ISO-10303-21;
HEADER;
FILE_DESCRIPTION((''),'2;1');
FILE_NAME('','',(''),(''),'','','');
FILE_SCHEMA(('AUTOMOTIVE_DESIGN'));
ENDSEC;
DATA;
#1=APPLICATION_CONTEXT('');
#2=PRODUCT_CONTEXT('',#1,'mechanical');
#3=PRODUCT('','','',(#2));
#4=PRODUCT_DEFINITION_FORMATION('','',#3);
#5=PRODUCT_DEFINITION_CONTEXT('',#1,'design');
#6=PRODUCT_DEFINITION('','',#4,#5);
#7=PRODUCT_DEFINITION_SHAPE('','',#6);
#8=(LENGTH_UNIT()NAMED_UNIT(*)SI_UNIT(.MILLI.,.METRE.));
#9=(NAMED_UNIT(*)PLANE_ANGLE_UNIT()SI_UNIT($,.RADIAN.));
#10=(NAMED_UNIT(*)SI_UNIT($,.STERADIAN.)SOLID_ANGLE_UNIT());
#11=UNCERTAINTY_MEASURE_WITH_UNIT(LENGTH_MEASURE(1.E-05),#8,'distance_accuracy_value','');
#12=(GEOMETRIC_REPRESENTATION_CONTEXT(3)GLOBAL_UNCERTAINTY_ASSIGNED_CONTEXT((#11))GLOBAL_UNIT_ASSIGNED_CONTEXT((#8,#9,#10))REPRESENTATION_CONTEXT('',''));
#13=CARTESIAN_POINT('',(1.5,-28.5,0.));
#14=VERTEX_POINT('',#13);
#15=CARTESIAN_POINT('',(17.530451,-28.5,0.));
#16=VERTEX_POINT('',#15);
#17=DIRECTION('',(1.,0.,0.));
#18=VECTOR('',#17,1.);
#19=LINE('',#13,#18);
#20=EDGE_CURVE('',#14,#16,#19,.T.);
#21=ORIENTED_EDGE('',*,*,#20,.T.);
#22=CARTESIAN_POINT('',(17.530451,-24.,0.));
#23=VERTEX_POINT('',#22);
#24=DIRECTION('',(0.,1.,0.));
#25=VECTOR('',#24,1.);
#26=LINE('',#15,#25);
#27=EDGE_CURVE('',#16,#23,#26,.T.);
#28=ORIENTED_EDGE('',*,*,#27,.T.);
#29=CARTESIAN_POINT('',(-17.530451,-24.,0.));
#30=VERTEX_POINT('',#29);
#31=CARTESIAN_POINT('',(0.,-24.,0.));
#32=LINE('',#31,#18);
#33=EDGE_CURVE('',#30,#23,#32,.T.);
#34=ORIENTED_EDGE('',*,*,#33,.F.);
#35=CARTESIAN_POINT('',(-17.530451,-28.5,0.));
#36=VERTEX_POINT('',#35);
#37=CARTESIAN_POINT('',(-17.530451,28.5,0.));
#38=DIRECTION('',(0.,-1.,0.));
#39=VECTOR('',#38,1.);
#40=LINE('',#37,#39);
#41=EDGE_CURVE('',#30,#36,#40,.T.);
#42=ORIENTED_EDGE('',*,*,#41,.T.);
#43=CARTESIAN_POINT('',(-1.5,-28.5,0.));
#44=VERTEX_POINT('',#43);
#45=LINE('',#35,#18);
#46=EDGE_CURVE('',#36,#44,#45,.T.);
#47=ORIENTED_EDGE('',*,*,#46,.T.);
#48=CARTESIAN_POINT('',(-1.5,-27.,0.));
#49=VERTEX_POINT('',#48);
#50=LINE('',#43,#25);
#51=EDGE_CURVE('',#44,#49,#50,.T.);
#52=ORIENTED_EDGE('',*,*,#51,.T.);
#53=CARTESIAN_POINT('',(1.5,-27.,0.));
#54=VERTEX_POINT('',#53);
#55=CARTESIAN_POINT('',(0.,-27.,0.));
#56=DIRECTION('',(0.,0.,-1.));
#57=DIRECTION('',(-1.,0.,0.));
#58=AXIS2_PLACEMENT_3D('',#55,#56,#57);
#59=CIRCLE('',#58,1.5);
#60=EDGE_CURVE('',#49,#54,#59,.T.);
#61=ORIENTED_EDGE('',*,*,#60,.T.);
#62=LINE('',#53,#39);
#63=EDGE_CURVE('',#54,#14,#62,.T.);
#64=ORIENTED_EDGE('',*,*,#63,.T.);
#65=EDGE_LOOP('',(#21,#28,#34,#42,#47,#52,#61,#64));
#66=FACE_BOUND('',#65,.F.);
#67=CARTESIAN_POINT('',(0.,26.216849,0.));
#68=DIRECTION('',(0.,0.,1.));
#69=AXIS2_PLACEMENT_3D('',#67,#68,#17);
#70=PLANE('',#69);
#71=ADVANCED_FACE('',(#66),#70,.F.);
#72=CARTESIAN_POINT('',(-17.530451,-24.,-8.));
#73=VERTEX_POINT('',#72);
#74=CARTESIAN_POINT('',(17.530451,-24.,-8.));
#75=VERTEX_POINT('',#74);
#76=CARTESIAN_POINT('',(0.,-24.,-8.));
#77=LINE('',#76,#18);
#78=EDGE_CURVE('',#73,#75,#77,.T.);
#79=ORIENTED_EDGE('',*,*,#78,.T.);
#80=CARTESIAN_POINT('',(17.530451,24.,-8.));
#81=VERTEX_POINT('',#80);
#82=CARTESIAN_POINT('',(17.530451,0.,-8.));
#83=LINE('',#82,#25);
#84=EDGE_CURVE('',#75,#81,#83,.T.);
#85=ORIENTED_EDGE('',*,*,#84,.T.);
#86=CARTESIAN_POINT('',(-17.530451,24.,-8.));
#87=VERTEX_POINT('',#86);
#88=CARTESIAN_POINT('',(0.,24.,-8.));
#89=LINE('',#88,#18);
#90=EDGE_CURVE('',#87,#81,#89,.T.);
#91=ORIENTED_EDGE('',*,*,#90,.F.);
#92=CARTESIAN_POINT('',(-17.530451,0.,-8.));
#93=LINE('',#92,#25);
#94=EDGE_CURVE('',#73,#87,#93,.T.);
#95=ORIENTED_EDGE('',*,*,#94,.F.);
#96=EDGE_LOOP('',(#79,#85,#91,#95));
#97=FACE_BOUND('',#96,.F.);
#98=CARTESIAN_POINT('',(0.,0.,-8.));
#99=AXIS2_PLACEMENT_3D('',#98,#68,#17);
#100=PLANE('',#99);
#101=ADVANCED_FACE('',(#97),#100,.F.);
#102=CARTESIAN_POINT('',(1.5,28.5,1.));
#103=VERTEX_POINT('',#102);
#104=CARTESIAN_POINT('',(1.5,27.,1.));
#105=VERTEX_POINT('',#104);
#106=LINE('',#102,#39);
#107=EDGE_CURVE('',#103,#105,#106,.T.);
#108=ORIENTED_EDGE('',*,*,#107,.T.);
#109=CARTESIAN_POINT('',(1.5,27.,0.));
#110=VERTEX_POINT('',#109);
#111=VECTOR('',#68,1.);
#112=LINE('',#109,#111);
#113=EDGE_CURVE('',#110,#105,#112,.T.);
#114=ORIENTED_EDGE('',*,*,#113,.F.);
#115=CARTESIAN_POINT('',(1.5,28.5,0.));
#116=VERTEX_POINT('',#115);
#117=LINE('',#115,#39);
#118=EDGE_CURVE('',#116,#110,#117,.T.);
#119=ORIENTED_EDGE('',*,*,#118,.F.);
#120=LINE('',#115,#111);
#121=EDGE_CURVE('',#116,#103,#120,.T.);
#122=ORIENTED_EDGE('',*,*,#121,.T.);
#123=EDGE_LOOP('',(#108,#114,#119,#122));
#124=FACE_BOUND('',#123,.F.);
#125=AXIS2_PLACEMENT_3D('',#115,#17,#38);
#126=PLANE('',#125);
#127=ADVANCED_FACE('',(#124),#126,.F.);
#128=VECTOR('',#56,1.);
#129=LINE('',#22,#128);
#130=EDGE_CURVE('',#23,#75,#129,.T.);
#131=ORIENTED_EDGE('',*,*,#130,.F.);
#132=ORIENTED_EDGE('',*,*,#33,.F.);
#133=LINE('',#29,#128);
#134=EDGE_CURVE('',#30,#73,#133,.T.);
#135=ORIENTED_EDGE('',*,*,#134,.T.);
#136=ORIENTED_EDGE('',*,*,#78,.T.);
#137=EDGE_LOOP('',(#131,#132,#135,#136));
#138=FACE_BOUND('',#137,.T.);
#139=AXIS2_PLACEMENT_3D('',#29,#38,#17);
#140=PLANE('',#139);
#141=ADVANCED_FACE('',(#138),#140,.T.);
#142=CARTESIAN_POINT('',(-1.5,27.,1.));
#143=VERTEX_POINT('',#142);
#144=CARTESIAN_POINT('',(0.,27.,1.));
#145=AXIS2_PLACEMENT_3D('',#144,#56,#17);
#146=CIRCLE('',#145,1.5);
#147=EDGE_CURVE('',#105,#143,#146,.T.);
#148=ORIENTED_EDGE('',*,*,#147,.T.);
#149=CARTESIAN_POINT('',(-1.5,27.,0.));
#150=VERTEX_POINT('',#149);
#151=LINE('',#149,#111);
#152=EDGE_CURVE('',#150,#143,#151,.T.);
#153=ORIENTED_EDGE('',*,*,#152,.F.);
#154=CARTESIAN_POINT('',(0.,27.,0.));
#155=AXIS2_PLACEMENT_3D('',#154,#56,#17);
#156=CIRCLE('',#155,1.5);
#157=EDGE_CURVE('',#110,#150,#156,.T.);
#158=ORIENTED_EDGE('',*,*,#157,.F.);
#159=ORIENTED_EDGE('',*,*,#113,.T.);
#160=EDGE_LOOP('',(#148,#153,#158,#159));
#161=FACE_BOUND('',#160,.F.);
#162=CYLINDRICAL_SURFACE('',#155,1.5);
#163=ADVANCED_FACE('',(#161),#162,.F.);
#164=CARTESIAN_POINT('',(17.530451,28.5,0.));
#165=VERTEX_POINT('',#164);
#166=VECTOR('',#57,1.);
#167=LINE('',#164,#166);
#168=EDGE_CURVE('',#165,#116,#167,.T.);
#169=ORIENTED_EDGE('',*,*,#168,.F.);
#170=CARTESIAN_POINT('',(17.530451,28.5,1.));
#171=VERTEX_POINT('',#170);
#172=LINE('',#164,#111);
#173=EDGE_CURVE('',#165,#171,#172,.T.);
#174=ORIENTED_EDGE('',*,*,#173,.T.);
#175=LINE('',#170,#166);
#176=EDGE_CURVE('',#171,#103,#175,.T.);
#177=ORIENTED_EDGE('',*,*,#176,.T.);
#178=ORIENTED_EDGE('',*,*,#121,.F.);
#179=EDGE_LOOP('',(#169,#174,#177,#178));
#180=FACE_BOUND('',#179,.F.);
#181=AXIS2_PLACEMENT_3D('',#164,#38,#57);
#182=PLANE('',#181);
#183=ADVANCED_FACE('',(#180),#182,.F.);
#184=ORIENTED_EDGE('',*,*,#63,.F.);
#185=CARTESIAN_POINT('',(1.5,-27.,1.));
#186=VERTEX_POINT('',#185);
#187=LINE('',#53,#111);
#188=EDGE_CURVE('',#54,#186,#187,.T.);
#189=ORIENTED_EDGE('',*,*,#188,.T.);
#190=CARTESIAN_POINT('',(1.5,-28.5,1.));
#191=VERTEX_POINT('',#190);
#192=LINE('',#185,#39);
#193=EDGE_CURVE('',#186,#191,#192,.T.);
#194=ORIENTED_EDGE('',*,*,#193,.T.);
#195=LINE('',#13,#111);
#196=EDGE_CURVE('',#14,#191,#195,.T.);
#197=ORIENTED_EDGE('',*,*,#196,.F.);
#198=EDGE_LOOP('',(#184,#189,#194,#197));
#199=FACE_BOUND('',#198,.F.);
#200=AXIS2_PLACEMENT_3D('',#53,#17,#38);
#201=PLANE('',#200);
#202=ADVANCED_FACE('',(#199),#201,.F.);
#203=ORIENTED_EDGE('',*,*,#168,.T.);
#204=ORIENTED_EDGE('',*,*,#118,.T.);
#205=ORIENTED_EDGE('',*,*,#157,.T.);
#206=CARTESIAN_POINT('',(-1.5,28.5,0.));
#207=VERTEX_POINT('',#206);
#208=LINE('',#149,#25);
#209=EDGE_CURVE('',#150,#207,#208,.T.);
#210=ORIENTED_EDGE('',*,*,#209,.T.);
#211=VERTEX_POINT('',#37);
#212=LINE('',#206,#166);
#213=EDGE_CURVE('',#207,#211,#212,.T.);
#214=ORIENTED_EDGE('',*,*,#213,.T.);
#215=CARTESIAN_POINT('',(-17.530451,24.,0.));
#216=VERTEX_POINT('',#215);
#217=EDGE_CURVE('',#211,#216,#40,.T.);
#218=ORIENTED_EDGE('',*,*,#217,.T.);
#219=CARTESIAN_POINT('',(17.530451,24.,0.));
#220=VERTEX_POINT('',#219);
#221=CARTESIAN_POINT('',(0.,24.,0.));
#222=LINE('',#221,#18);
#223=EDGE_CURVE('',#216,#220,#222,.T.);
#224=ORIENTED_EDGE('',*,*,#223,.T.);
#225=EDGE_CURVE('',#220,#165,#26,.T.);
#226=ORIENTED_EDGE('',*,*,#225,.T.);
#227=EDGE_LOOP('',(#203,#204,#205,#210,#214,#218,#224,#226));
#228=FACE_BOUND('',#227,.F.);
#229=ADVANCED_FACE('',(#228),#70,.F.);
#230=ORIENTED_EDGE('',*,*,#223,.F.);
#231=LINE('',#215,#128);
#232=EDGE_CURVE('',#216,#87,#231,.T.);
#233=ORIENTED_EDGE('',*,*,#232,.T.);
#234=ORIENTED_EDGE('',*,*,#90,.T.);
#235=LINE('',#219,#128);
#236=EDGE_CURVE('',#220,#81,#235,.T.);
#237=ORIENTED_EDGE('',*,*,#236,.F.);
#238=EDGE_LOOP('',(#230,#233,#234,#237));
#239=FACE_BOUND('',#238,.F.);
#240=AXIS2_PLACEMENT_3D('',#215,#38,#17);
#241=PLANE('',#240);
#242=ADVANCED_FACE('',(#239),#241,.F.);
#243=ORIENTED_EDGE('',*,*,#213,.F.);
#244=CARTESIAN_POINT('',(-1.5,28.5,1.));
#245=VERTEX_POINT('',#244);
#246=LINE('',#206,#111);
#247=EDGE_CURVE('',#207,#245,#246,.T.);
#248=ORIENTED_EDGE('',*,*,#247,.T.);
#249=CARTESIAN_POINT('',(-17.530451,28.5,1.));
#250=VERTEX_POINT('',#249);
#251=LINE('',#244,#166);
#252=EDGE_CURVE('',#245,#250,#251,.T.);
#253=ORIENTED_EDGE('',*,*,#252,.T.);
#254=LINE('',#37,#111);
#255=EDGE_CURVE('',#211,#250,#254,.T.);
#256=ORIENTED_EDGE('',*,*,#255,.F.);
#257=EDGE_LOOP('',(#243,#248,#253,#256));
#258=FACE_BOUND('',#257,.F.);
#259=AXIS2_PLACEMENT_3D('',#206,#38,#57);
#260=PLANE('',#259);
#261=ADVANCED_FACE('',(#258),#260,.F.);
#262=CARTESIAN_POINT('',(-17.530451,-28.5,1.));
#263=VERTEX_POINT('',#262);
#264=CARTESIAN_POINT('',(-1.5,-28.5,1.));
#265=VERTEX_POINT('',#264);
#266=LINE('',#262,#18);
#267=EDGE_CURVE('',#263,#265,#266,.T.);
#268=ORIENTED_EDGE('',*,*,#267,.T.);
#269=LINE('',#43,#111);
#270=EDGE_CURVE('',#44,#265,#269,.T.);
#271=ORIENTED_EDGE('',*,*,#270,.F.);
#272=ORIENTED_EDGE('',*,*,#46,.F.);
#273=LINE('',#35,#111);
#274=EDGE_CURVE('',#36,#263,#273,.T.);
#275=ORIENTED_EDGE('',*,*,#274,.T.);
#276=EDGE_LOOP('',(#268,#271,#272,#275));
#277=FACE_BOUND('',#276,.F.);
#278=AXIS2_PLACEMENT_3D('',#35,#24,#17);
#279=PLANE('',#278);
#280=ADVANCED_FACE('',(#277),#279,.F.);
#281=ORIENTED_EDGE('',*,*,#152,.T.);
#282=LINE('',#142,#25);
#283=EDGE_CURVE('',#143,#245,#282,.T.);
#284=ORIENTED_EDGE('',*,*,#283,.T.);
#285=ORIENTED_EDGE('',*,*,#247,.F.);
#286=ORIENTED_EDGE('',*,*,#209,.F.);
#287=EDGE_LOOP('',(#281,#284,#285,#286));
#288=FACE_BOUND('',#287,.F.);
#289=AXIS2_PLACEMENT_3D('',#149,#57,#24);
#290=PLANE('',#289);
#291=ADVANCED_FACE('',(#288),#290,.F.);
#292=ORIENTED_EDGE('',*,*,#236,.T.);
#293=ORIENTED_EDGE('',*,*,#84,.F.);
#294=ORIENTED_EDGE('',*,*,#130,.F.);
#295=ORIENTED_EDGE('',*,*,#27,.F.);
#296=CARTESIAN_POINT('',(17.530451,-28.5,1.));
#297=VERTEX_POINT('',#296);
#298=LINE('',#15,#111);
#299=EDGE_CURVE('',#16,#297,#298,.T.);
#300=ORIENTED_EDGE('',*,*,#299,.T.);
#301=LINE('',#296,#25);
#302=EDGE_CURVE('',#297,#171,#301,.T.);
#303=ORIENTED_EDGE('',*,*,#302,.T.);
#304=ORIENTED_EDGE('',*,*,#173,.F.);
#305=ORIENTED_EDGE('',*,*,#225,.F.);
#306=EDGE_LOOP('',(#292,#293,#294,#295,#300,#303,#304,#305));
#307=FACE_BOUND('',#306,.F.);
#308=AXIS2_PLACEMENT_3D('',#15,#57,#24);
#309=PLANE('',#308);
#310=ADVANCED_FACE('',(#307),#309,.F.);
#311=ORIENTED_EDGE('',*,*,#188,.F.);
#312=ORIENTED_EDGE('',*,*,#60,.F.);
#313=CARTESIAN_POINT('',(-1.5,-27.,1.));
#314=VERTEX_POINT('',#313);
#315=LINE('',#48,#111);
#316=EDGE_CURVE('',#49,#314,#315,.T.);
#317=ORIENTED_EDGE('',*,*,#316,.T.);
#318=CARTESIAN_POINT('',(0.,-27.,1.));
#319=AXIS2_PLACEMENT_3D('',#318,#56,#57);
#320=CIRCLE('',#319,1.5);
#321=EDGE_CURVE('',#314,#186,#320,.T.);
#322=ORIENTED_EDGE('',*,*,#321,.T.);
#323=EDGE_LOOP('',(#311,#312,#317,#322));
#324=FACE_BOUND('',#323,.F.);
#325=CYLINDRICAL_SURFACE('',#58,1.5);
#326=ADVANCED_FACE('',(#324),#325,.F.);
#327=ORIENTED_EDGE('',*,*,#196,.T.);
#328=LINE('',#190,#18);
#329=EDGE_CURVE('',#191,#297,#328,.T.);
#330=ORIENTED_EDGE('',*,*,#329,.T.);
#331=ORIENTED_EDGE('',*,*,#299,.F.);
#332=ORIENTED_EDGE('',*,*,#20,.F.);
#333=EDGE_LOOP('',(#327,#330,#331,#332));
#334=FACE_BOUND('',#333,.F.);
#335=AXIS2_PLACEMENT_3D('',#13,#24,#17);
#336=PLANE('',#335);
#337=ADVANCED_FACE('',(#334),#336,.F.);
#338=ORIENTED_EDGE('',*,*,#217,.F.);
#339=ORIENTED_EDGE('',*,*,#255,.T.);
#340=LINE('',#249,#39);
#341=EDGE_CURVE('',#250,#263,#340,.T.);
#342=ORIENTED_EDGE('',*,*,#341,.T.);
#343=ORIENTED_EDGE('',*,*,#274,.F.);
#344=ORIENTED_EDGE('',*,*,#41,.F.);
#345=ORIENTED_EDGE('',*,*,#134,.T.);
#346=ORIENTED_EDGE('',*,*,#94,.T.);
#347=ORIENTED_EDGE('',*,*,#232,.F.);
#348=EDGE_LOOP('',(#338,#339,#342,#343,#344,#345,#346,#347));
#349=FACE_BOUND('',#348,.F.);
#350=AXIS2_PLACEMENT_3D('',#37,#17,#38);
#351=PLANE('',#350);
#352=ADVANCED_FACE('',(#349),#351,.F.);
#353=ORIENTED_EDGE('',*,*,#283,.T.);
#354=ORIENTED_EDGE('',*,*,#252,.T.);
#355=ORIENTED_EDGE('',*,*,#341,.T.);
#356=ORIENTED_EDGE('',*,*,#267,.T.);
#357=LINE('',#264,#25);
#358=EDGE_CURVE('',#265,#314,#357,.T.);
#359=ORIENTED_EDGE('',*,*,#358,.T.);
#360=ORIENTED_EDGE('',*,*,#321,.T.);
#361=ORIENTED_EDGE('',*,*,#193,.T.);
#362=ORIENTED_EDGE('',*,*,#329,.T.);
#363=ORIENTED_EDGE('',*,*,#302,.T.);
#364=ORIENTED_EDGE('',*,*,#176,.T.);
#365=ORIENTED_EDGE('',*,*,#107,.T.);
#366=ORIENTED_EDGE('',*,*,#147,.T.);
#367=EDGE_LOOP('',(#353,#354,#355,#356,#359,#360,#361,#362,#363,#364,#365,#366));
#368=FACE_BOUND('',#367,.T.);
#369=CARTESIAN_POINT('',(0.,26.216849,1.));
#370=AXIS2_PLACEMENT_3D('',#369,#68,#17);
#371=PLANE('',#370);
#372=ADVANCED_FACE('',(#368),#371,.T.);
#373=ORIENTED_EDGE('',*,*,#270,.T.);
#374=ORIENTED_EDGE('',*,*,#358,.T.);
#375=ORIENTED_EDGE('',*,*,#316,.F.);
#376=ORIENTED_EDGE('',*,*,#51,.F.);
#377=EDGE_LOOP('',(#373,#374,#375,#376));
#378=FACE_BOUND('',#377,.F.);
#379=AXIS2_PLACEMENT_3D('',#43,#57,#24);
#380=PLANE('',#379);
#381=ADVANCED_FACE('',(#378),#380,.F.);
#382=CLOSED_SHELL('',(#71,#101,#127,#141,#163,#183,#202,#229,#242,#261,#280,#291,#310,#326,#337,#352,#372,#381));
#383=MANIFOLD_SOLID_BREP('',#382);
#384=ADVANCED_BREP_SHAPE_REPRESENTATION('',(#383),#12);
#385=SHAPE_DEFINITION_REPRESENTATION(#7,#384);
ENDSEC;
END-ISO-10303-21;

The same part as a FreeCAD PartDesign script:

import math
import FreeCAD as App
import Part
import Sketcher

V = App.Vector


def add_polygon(sketch, points):
    """Adds a closed chain of lines whose ends are joined by coincident constraints."""
    first, n = sketch.GeometryCount, len(points)
    for a, b in zip(points, points[1:] + points[:1]):
        sketch.addGeometry(Part.LineSegment(App.Vector(*a, 0), App.Vector(*b, 0)), False)
    for i in range(n):
        sketch.addConstraint(Sketcher.Constraint("Coincident", first + i, 2, first + (i + 1) % n, 1))

doc = App.newDocument("Part")
params = doc.addObject("Spreadsheet::Sheet", "Params")
for row, (alias, value) in enumerate([
    ("sketch1_radius", "1.5 mm"),
    ("sketch1_height", "57 mm"),
    ("sketch1_height2", "1.5 mm"),
    ("pad1_length", "1 mm"),
    ("sketch2_height", "48 mm"),
    ("pad2_length", "8 mm"),
], start=1):
    params.set(f"A{row}", alias)
    params.set(f"B{row}", "=" + value)
    params.setAlias(f"B{row}", alias)

body = doc.addObject("PartDesign::Body", "Body")

# Sketch on XY plane
sketch1 = body.newObject("Sketcher::SketchObject", "Sketch")
sketch1.AttachmentSupport = (doc.getObject("XY_Plane"), [""])
sketch1.MapMode = "FlatFace"
sketch1.addGeometry([
    Part.LineSegment(V(-17.530451, 28.5, 0), V(-17.530451, -28.5, 0)),  # 0
    Part.LineSegment(V(-17.530451, -28.5, 0), V(-1.5, -28.5, 0)),  # 1
    Part.LineSegment(V(-1.5, -28.5, 0), V(-1.5, -27, 0)),  # 2
    Part.ArcOfCircle(Part.Circle(V(0, -27, 0), V(0, 0, 1), 1.5), math.radians(0), math.radians(180)),  # 3
    Part.LineSegment(V(1.5, -27, 0), V(1.5, -28.5, 0)),  # 4
    Part.LineSegment(V(1.5, -28.5, 0), V(17.530451, -28.5, 0)),  # 5
    Part.LineSegment(V(17.530451, -28.5, 0), V(17.530451, 28.5, 0)),  # 6
    Part.LineSegment(V(17.530451, 28.5, 0), V(1.5, 28.5, 0)),  # 7
    Part.LineSegment(V(1.5, 28.5, 0), V(1.5, 27, 0)),  # 8
    Part.ArcOfCircle(Part.Circle(V(0, 27, 0), V(0, 0, 1), 1.5), math.radians(180), math.radians(360)),  # 9
    Part.LineSegment(V(-1.5, 27, 0), V(-1.5, 28.5, 0)),  # 10
    Part.LineSegment(V(-1.5, 28.5, 0), V(-17.530451, 28.5, 0)),  # 11
], False)
sketch1.addConstraint([
    Sketcher.Constraint("Coincident", 0, 2, 1, 1),
    Sketcher.Constraint("Coincident", 1, 2, 2, 1),
    Sketcher.Constraint("Tangent", 2, 2, 3, 2),
    Sketcher.Constraint("Tangent", 3, 1, 4, 1),
    Sketcher.Constraint("Coincident", 4, 2, 5, 1),
    Sketcher.Constraint("Coincident", 5, 2, 6, 1),
    Sketcher.Constraint("Coincident", 6, 2, 7, 1),
    Sketcher.Constraint("Coincident", 7, 2, 8, 1),
    Sketcher.Constraint("Tangent", 8, 2, 9, 2),
    Sketcher.Constraint("Tangent", 9, 1, 10, 1),
    Sketcher.Constraint("Coincident", 10, 2, 11, 1),
    Sketcher.Constraint("Coincident", 11, 2, 0, 1),
    Sketcher.Constraint("Vertical", 0),
    Sketcher.Constraint("Horizontal", 1),
    Sketcher.Constraint("Vertical", 2),
    Sketcher.Constraint("Vertical", 4),
    Sketcher.Constraint("Horizontal", 5),
    Sketcher.Constraint("Vertical", 6),
    Sketcher.Constraint("Horizontal", 7),
    Sketcher.Constraint("Vertical", 8),
    Sketcher.Constraint("Vertical", 10),
    Sketcher.Constraint("Horizontal", 11),
    Sketcher.Constraint("Equal", 3, 9),
    Sketcher.Constraint("Symmetric", 3, 3, 9, 3, -1, 1),
    Sketcher.Constraint("Symmetric", 0, 2, 6, 2, -1, 1),
    Sketcher.Constraint("Symmetric", 1, 2, 4, 2, -2),
    Sketcher.Constraint("Horizontal", 7, 2, 10, 2),
    Sketcher.Constraint("Radius", 3, 1.5),
    Sketcher.Constraint("DistanceY", 0, 2, 0, 1, 57.0),
    Sketcher.Constraint("DistanceY", 2, 1, 2, 2, 1.5),
    Sketcher.Constraint("DistanceX", 1, 1, 1, 2, 16.030451),
])
sketch1.setExpression("Constraints[27]", "Params.sketch1_radius")
sketch1.setExpression("Constraints[28]", "Params.sketch1_height")
sketch1.setExpression("Constraints[29]", "Params.sketch1_height2")
pad1 = body.newObject("PartDesign::Pad", "Pad")
pad1.Profile = sketch1
pad1.setExpression("Length", "Params.pad1_length")

# Sketch on XY plane
sketch2 = body.newObject("Sketcher::SketchObject", "Sketch001")
sketch2.AttachmentSupport = (doc.getObject("XY_Plane"), [""])
sketch2.MapMode = "FlatFace"
add_polygon(sketch2, [(-17.530451, 24), (-17.530451, -24), (17.530451, -24), (17.530451, 24)])  # lines 0-3
sketch2.addConstraint([
    Sketcher.Constraint("Vertical", 0),
    Sketcher.Constraint("Horizontal", 1),
    Sketcher.Constraint("Vertical", 2),
    Sketcher.Constraint("Horizontal", 3),
    Sketcher.Constraint("Symmetric", 0, 2, 2, 2, -1, 1),
    Sketcher.Constraint("DistanceY", 0, 2, 0, 1, 48.0),
    Sketcher.Constraint("DistanceX", 1, 1, 1, 2, 35.060902),
])
sketch2.setExpression("Constraints[9]", "Params.sketch2_height")
pad2 = body.newObject("PartDesign::Pad", "Pad001")
pad2.Profile = sketch2
pad2.setExpression("Length", "Params.pad2_length")
pad2.Reversed = True

doc.recompute()
